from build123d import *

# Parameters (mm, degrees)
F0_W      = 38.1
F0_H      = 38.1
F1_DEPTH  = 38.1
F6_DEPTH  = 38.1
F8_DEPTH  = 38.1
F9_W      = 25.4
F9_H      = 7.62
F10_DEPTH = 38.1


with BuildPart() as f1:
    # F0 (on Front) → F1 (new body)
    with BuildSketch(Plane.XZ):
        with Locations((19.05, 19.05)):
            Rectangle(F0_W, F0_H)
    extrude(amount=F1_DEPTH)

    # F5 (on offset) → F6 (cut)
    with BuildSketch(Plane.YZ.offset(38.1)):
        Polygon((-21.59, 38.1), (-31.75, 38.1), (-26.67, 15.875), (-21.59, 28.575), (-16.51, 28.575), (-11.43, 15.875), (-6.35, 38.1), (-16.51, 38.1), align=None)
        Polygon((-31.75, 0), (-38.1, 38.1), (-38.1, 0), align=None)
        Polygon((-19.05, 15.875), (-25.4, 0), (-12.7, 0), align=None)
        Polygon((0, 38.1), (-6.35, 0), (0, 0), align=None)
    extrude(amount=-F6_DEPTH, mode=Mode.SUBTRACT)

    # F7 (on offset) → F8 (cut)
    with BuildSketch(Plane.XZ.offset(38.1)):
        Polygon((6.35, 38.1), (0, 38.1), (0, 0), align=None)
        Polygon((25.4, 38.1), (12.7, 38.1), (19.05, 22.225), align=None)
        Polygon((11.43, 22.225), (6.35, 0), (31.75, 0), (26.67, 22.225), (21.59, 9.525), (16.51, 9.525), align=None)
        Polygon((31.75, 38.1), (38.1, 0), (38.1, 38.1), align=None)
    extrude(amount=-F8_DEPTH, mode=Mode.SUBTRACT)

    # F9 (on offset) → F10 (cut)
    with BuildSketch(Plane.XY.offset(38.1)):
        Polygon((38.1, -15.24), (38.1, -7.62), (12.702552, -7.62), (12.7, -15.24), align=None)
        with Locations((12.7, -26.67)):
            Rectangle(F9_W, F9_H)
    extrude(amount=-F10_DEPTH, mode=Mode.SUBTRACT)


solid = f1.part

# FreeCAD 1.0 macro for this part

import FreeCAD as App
import Part
import Sketcher
from FreeCAD import Vector
Q = App.Units.Quantity


def add_polygon(sketch, points):
    """Adds a closed chain of lines whose ends are joined by coincident constraints."""
    first, n = sketch.GeometryCount, len(points)
    for a, b in zip(points, points[1:] + points[:1]):
        sketch.addGeometry(Part.LineSegment(App.Vector(*a, 0), App.Vector(*b, 0)), False)
    for i in range(n):
        sketch.addConstraint(Sketcher.Constraint("Coincident", first + i, 2, first + (i + 1) % n, 1))

doc = App.newDocument("Part")
body = doc.addObject("PartDesign::Body", "Body")

sketch1 = doc.addObject("Sketcher::SketchObject", "Sketch")
body.addObject(sketch1)
sketch1.AttachmentSupport = (doc.XZ_Plane, [""])
sketch1.MapMode = "FlatFace"
add_polygon(sketch1, [(0, 38), (0, 0), (38, 0), (38, 38)])
sketch1.addConstraint([
    Sketcher.Constraint("Vertical", 0),
    Sketcher.Constraint("Horizontal", 1),
    Sketcher.Constraint("Vertical", 2),
    Sketcher.Constraint("Horizontal", 3),
    Sketcher.Constraint("Coincident", 0, 2, -1, 1),
    Sketcher.Constraint("Equal", 3, 0),
    Sketcher.Constraint("DistanceX", 1, 1, 1, 2, Q("1.5 in")),
])
pad1 = doc.addObject("PartDesign::Pad", "Pad")
body.addObject(pad1)
pad1.Profile = sketch1
pad1.Length = Q("1.5 in")

sketch2 = doc.addObject("Sketcher::SketchObject", "Sketch001")
body.addObject(sketch2)
sketch2.AttachmentSupport = (doc.YZ_Plane, [""])
sketch2.MapMode = "FlatFace"
sketch2.AttachmentOffset = App.Placement(Vector(0, 0, 1.5 * 25.4), App.Rotation())
add_polygon(sketch2, [(-32, 38), (-27, 16), (-22, 29), (-17, 29), (-11, 16), (-6, 38)])
add_polygon(sketch2, [(-32, 0), (-38, 38), (-38, 0)])
add_polygon(sketch2, [(-19, 16), (-25, 0), (-13, 0)])
add_polygon(sketch2, [(0, 38), (-6, 0), (0, 0)])
sketch2.addConstraint([
    Sketcher.Constraint("Horizontal", 2),
    Sketcher.Constraint("Horizontal", 5),
    Sketcher.Constraint("Vertical", 7),
    Sketcher.Constraint("Horizontal", 8),
    Sketcher.Constraint("Horizontal", 10),
    Sketcher.Constraint("Horizontal", 13),
    Sketcher.Constraint("Vertical", 14),
    Sketcher.Constraint("Coincident", 13, 2, -1, 1),
    Sketcher.Constraint("PointOnObject", 7, 2, -1),
    Sketcher.Constraint("PointOnObject", 9, 2, -1),
    Sketcher.Constraint("Parallel", 1, 9),
    Sketcher.Constraint("Parallel", 3, 11),
    Sketcher.Constraint("Horizontal", 0, 2, 3, 2),
    Sketcher.Constraint("Horizontal", 5, 2, 6, 2),
    Sketcher.Constraint("Horizontal", 3, 2, 11, 2),
    Sketcher.Constraint("Horizontal", 6, 2, 14, 2),
    Sketcher.Constraint("Vertical", 5, 2, 8, 2),
    Sketcher.Constraint("Vertical", 4, 2, 12, 2),
    Sketcher.Constraint("Equal", 8, 13),
    Sketcher.Constraint("Equal", 1, 3),
    Sketcher.Constraint("Equal", 0, 4),
    Sketcher.Constraint("DistanceX", 5, 2, 5, 1, Q("1 in")),
    Sketcher.Constraint("DistanceX", 2, 1, 2, 2, Q("0.2 in")),
    Sketcher.Constraint("DistanceX", 10, 1, 10, 2, Q("0.5 in")),
    Sketcher.Constraint("DistanceY", 7, 2, 7, 1, Q("1.5 in")),
    Sketcher.Constraint("DistanceX", 9, 2, -1, 1, Q("1 in")),
    Sketcher.Constraint("DistanceX", 7, 2, 10, 2, Q("1 in")),
    Sketcher.Constraint("DistanceX", 0, 2, 1, 2, Q("0.2 in")),
    Sketcher.Constraint("DistanceY", 0, 2, 1, 2, Q("0.5 in")),
])
pocket1 = doc.addObject("PartDesign::Pocket", "Pocket")
body.addObject(pocket1)
pocket1.Profile = sketch2
pocket1.Length = Q("1.5 in")

sketch3 = doc.addObject("Sketcher::SketchObject", "Sketch002")
body.addObject(sketch3)
sketch3.AttachmentSupport = (doc.XZ_Plane, [""])
sketch3.MapMode = "FlatFace"
sketch3.AttachmentOffset = App.Placement(Vector(0, 0, 1.5 * 25.4), App.Rotation())
add_polygon(sketch3, [(6, 38), (0, 38), (0, 0)])
add_polygon(sketch3, [(25, 38), (13, 38), (19, 22)])
add_polygon(sketch3, [(11, 22), (6, 0), (32, 0), (27, 22), (22, 10), (17, 10)])
add_polygon(sketch3, [(32, 38), (38, 0), (38, 38)])
sketch3.addConstraint([
    Sketcher.Constraint("Horizontal", 0),
    Sketcher.Constraint("Vertical", 1),
    Sketcher.Constraint("Horizontal", 3),
    Sketcher.Constraint("Horizontal", 7),
    Sketcher.Constraint("Horizontal", 10),
    Sketcher.Constraint("Vertical", 13),
    Sketcher.Constraint("Horizontal", 14),
    Sketcher.Constraint("Coincident", 1, 2, -1, 1),
    Sketcher.Constraint("PointOnObject", 6, 2, -1),
    Sketcher.Constraint("PointOnObject", 12, 2, -1),
    Sketcher.Constraint("Parallel", 5, 9),
    Sketcher.Constraint("Parallel", 4, 11),
    Sketcher.Constraint("Horizontal", 2, 2, 3, 2),
    Sketcher.Constraint("Horizontal", 4, 2, 8, 2),
    Sketcher.Constraint("Horizontal", 8, 2, 11, 2),
    Sketcher.Constraint("Horizontal", 5, 2, 13, 2),
    Sketcher.Constraint("Vertical", 2, 2, 6, 2),
    Sketcher.Constraint("Vertical", 7, 2, 14, 2),
    Sketcher.Constraint("Equal", 0, 14),
    Sketcher.Constraint("Equal", 4, 5),
    Sketcher.Constraint("Equal", 6, 8),
    Sketcher.Constraint("DistanceX", 7, 1, 7, 2, Q("1 in")),
    Sketcher.Constraint("DistanceX", 3, 2, 3, 1, Q("0.5 in")),
    Sketcher.Constraint("DistanceX", 10, 2, 10, 1, Q("0.2 in")),
    Sketcher.Constraint("DistanceY", 1, 2, 1, 1, Q("1.5 in")),
    Sketcher.Constraint("DistanceX", -1, 1, 5, 2, Q("1 in")),
    Sketcher.Constraint("DistanceX", 3, 2, 13, 2, Q("1 in")),
    Sketcher.Constraint("DistanceX", 4, 2, 8, 2, Q("0.3 in")),
    Sketcher.Constraint("DistanceY", 9, 2, 4, 2, Q("0.5 in")),
])
pocket2 = doc.addObject("PartDesign::Pocket", "Pocket001")
body.addObject(pocket2)
pocket2.Profile = sketch3
pocket2.Length = Q("1.5 in")

sketch4 = doc.addObject("Sketcher::SketchObject", "Sketch003")
body.addObject(sketch4)
sketch4.AttachmentSupport = (doc.XY_Plane, [""])
sketch4.MapMode = "FlatFace"
sketch4.AttachmentOffset = App.Placement(Vector(0, 0, 1.5 * 25.4), App.Rotation())
add_polygon(sketch4, [(38, -15), (38, -8), (13, -8), (13, -15)])
add_polygon(sketch4, [(0, -23), (0, -30), (25, -30), (25, -23)])
sketch4.addConstraint([
    Sketcher.Constraint("Vertical", 0),
    Sketcher.Constraint("Horizontal", 1),
    Sketcher.Constraint("Horizontal", 3),
    Sketcher.Constraint("Vertical", 4),
    Sketcher.Constraint("Horizontal", 5),
    Sketcher.Constraint("Vertical", 6),
    Sketcher.Constraint("Horizontal", 7),
    Sketcher.Constraint("PointOnObject", 4, 2, -2),
    Sketcher.Constraint("Equal", 3, 5),
    Sketcher.Constraint("Equal", 0, 4),
    Sketcher.Constraint("DistanceX", 3, 1, 3, 2, Q("1 in")),
    Sketcher.Constraint("DistanceY", 0, 1, 0, 2, Q("0.3 in")),
    Sketcher.Constraint("DistanceX", -1, 1, 0, 2, Q("1.5 in")),
    Sketcher.Constraint("DistanceY", 0, 2, -1, 1, Q("0.3 in")),
    Sketcher.Constraint("DistanceY", 4, 2, -1, 1, Q("1.2 in")),
    Sketcher.Constraint("DistanceX", 1, 2, 1, 1, 25.397448),
])
pocket3 = doc.addObject("PartDesign::Pocket", "Pocket002")
body.addObject(pocket3)
pocket3.Profile = sketch4
pocket3.Length = Q("1.5 in")

doc.recompute()
